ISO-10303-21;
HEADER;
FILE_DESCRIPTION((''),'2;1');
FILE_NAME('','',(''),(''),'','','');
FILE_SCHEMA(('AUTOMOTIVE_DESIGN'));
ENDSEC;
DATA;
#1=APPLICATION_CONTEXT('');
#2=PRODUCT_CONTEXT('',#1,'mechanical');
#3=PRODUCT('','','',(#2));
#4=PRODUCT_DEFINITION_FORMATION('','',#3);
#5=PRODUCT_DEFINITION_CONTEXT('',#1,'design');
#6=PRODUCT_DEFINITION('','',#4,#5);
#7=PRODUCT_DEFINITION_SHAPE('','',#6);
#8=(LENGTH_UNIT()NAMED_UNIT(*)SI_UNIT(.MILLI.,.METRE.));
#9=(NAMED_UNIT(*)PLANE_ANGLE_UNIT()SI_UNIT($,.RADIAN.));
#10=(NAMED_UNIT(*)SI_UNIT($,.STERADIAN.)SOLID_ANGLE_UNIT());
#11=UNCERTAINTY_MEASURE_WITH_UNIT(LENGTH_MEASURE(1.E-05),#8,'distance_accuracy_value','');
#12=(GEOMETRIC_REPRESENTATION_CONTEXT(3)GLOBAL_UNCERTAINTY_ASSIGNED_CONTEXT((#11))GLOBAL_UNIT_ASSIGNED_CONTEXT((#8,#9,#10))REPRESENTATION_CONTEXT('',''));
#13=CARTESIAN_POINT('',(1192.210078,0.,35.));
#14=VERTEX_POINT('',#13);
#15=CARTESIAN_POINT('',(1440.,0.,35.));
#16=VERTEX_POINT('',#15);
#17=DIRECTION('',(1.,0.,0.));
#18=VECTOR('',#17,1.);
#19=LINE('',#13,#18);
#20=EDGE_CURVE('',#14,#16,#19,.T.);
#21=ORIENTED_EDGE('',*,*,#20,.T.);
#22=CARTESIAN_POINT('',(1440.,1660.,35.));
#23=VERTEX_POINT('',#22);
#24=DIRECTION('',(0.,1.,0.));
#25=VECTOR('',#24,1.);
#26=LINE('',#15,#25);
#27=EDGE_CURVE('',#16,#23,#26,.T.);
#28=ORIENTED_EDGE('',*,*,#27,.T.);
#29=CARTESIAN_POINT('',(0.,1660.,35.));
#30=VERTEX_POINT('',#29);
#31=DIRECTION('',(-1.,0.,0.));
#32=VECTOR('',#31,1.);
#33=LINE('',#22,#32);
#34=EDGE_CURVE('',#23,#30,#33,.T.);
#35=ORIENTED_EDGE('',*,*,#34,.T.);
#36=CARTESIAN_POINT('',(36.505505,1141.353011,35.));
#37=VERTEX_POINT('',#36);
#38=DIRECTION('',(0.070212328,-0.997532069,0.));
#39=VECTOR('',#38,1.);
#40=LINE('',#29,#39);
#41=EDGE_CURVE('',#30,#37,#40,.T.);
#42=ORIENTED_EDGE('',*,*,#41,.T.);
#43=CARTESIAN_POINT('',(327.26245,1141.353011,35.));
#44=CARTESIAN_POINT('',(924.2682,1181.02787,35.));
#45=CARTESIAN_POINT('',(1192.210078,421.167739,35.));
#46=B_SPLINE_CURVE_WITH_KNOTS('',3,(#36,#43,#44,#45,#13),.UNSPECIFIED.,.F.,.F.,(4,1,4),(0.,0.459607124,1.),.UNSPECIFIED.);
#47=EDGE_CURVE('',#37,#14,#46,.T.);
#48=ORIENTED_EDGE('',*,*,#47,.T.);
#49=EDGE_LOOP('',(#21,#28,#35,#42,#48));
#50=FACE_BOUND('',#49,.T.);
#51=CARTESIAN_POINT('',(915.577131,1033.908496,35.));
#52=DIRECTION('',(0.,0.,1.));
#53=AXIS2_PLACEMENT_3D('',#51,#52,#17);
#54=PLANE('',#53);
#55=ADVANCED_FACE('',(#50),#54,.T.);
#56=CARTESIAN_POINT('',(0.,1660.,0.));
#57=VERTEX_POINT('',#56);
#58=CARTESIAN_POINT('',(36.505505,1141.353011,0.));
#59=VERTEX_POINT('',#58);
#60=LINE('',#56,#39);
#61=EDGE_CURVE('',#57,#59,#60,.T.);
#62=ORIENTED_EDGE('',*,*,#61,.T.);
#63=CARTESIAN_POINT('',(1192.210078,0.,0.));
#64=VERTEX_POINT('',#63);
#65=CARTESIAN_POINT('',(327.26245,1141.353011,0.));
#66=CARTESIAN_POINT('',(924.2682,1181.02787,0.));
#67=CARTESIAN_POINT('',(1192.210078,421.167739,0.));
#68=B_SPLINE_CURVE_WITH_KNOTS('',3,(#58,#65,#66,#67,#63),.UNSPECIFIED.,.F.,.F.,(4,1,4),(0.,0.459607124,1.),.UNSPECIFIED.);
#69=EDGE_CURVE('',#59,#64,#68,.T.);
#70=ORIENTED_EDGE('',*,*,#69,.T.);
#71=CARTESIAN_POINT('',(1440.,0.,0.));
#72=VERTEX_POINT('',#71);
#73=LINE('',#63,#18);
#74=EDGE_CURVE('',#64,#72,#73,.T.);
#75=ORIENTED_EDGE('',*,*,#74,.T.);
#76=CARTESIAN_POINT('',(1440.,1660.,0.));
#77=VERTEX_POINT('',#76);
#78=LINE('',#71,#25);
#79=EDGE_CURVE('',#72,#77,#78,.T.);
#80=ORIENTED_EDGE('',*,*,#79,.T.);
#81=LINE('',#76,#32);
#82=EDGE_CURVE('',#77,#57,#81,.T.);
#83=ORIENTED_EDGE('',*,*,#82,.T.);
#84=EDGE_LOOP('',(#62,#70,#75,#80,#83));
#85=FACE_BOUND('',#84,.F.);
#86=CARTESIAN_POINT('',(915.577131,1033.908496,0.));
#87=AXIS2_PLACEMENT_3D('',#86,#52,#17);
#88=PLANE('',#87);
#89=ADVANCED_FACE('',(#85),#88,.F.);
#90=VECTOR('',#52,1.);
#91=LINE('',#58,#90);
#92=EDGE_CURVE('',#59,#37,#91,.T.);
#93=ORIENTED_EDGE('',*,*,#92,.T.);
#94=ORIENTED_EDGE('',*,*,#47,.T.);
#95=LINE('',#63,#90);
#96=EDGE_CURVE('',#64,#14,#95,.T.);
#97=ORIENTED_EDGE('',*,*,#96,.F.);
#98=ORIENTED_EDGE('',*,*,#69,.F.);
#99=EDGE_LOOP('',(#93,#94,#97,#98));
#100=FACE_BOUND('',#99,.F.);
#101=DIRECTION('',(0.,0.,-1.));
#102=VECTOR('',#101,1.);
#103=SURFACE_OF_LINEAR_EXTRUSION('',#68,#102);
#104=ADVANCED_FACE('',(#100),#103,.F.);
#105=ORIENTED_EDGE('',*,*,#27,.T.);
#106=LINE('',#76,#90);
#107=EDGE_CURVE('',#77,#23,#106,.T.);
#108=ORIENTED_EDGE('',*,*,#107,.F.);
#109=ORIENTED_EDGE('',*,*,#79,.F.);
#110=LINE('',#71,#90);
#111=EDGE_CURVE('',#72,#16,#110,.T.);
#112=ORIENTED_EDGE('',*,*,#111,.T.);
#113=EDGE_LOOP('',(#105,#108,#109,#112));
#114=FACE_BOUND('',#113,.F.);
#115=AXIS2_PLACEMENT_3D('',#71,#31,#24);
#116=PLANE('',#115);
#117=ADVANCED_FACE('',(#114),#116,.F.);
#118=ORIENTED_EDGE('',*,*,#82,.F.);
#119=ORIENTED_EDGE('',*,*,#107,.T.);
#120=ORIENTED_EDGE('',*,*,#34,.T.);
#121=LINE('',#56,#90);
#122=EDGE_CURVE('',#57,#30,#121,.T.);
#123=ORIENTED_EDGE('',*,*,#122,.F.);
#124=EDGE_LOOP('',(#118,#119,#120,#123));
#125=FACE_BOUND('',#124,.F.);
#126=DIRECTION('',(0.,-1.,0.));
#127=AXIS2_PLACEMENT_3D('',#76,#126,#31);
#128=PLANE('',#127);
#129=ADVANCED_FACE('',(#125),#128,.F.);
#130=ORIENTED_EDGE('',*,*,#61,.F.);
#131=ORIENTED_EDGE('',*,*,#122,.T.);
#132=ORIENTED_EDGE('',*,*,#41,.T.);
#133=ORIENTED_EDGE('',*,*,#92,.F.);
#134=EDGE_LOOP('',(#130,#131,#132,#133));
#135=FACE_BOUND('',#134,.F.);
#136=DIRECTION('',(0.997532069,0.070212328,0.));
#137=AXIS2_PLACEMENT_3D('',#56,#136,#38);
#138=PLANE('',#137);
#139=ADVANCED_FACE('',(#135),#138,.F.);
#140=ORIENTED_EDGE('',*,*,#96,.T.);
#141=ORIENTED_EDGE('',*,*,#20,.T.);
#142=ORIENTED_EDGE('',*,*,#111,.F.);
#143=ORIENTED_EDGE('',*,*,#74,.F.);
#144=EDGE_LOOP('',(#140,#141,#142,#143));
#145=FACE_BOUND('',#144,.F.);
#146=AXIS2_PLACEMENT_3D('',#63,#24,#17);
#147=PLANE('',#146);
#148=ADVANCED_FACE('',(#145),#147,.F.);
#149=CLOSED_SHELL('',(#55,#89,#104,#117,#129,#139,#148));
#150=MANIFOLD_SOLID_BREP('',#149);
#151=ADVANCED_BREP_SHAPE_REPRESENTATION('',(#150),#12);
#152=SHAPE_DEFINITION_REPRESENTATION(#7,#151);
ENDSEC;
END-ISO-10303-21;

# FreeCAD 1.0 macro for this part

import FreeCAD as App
import Part
import Sketcher

V = App.Vector
Q = App.Units.Quantity

doc = App.newDocument("Part")
params = doc.addObject("Spreadsheet::Sheet", "Params")
for row, (alias, value) in enumerate([
    ("sketch1_width", "1440 mm"),
    ("sketch1_height", "1660 mm"),
    ("pad1_length", "35 mm"),
], start=1):
    params.set(f"A{row}", alias)
    params.set(f"B{row}", "=" + value)
    params.setAlias(f"B{row}", alias)

body = doc.addObject("PartDesign::Body", "Body")

sketch1 = body.newObject("Sketcher::SketchObject", "Sketch")
sketch1.AttachmentSupport = (doc.getObject("XY_Plane"), [""])
sketch1.MapMode = "FlatFace"
sketch1.addGeometry(Part.LineSegment(V(1440, 1660, 0), V(0, 1660, 0)), False)
sketch1.addGeometry(Part.LineSegment(V(0, 1660, 0), V(36.505505, 1141.353011, 0)), False)
sketch1.addGeometry(Part.BSplineCurve([V(36.505505, 1141.353011, 0), V(327.26245, 1141.353011, 0), V(924.2682, 1181.02787, 0), V(1192.210078, 421.167739, 0), V(1192.210078, 0, 0)], [4, 1, 4], [0, 0.459607124, 1], False, 3, [1, 1, 1, 1, 1], False), False)
sketch1.addGeometry(Part.LineSegment(V(1192.210078, 0, 0), V(1440, 0, 0)), False)
sketch1.addGeometry(Part.LineSegment(V(1440, 0, 0), V(1440, 1660, 0)), False)
sketch1.addConstraint(Sketcher.Constraint("Block", 2))
sketch1.addConstraint(Sketcher.Constraint("Coincident", 0, 2, 1, 1))
sketch1.addConstraint(Sketcher.Constraint("Coincident", 1, 2, 2, 1))
sketch1.addConstraint(Sketcher.Constraint("Coincident", 2, 2, 3, 1))
sketch1.addConstraint(Sketcher.Constraint("Coincident", 3, 2, 4, 1))
sketch1.addConstraint(Sketcher.Constraint("Coincident", 4, 2, 0, 1))
sketch1.addConstraint(Sketcher.Constraint("Horizontal", 0))
sketch1.addConstraint(Sketcher.Constraint("Horizontal", 3))
sketch1.addConstraint(Sketcher.Constraint("Vertical", 4))
sketch1.addConstraint(Sketcher.Constraint("PointOnObject", 0, 2, -2))
sketch1.addConstraint(Sketcher.Constraint("DistanceX", 0, 2, 0, 1, Q("1440 mm")))
sketch1.addConstraint(Sketcher.Constraint("DistanceY", 4, 1, 4, 2, Q("1660 mm")))
sketch1.setExpression("Constraints[10]", "Params.sketch1_width")
sketch1.setExpression("Constraints[11]", "Params.sketch1_height")
pad1 = body.newObject("PartDesign::Pad", "Pad")
pad1.Profile = sketch1
pad1.setExpression("Length", "Params.pad1_length")

doc.recompute()
